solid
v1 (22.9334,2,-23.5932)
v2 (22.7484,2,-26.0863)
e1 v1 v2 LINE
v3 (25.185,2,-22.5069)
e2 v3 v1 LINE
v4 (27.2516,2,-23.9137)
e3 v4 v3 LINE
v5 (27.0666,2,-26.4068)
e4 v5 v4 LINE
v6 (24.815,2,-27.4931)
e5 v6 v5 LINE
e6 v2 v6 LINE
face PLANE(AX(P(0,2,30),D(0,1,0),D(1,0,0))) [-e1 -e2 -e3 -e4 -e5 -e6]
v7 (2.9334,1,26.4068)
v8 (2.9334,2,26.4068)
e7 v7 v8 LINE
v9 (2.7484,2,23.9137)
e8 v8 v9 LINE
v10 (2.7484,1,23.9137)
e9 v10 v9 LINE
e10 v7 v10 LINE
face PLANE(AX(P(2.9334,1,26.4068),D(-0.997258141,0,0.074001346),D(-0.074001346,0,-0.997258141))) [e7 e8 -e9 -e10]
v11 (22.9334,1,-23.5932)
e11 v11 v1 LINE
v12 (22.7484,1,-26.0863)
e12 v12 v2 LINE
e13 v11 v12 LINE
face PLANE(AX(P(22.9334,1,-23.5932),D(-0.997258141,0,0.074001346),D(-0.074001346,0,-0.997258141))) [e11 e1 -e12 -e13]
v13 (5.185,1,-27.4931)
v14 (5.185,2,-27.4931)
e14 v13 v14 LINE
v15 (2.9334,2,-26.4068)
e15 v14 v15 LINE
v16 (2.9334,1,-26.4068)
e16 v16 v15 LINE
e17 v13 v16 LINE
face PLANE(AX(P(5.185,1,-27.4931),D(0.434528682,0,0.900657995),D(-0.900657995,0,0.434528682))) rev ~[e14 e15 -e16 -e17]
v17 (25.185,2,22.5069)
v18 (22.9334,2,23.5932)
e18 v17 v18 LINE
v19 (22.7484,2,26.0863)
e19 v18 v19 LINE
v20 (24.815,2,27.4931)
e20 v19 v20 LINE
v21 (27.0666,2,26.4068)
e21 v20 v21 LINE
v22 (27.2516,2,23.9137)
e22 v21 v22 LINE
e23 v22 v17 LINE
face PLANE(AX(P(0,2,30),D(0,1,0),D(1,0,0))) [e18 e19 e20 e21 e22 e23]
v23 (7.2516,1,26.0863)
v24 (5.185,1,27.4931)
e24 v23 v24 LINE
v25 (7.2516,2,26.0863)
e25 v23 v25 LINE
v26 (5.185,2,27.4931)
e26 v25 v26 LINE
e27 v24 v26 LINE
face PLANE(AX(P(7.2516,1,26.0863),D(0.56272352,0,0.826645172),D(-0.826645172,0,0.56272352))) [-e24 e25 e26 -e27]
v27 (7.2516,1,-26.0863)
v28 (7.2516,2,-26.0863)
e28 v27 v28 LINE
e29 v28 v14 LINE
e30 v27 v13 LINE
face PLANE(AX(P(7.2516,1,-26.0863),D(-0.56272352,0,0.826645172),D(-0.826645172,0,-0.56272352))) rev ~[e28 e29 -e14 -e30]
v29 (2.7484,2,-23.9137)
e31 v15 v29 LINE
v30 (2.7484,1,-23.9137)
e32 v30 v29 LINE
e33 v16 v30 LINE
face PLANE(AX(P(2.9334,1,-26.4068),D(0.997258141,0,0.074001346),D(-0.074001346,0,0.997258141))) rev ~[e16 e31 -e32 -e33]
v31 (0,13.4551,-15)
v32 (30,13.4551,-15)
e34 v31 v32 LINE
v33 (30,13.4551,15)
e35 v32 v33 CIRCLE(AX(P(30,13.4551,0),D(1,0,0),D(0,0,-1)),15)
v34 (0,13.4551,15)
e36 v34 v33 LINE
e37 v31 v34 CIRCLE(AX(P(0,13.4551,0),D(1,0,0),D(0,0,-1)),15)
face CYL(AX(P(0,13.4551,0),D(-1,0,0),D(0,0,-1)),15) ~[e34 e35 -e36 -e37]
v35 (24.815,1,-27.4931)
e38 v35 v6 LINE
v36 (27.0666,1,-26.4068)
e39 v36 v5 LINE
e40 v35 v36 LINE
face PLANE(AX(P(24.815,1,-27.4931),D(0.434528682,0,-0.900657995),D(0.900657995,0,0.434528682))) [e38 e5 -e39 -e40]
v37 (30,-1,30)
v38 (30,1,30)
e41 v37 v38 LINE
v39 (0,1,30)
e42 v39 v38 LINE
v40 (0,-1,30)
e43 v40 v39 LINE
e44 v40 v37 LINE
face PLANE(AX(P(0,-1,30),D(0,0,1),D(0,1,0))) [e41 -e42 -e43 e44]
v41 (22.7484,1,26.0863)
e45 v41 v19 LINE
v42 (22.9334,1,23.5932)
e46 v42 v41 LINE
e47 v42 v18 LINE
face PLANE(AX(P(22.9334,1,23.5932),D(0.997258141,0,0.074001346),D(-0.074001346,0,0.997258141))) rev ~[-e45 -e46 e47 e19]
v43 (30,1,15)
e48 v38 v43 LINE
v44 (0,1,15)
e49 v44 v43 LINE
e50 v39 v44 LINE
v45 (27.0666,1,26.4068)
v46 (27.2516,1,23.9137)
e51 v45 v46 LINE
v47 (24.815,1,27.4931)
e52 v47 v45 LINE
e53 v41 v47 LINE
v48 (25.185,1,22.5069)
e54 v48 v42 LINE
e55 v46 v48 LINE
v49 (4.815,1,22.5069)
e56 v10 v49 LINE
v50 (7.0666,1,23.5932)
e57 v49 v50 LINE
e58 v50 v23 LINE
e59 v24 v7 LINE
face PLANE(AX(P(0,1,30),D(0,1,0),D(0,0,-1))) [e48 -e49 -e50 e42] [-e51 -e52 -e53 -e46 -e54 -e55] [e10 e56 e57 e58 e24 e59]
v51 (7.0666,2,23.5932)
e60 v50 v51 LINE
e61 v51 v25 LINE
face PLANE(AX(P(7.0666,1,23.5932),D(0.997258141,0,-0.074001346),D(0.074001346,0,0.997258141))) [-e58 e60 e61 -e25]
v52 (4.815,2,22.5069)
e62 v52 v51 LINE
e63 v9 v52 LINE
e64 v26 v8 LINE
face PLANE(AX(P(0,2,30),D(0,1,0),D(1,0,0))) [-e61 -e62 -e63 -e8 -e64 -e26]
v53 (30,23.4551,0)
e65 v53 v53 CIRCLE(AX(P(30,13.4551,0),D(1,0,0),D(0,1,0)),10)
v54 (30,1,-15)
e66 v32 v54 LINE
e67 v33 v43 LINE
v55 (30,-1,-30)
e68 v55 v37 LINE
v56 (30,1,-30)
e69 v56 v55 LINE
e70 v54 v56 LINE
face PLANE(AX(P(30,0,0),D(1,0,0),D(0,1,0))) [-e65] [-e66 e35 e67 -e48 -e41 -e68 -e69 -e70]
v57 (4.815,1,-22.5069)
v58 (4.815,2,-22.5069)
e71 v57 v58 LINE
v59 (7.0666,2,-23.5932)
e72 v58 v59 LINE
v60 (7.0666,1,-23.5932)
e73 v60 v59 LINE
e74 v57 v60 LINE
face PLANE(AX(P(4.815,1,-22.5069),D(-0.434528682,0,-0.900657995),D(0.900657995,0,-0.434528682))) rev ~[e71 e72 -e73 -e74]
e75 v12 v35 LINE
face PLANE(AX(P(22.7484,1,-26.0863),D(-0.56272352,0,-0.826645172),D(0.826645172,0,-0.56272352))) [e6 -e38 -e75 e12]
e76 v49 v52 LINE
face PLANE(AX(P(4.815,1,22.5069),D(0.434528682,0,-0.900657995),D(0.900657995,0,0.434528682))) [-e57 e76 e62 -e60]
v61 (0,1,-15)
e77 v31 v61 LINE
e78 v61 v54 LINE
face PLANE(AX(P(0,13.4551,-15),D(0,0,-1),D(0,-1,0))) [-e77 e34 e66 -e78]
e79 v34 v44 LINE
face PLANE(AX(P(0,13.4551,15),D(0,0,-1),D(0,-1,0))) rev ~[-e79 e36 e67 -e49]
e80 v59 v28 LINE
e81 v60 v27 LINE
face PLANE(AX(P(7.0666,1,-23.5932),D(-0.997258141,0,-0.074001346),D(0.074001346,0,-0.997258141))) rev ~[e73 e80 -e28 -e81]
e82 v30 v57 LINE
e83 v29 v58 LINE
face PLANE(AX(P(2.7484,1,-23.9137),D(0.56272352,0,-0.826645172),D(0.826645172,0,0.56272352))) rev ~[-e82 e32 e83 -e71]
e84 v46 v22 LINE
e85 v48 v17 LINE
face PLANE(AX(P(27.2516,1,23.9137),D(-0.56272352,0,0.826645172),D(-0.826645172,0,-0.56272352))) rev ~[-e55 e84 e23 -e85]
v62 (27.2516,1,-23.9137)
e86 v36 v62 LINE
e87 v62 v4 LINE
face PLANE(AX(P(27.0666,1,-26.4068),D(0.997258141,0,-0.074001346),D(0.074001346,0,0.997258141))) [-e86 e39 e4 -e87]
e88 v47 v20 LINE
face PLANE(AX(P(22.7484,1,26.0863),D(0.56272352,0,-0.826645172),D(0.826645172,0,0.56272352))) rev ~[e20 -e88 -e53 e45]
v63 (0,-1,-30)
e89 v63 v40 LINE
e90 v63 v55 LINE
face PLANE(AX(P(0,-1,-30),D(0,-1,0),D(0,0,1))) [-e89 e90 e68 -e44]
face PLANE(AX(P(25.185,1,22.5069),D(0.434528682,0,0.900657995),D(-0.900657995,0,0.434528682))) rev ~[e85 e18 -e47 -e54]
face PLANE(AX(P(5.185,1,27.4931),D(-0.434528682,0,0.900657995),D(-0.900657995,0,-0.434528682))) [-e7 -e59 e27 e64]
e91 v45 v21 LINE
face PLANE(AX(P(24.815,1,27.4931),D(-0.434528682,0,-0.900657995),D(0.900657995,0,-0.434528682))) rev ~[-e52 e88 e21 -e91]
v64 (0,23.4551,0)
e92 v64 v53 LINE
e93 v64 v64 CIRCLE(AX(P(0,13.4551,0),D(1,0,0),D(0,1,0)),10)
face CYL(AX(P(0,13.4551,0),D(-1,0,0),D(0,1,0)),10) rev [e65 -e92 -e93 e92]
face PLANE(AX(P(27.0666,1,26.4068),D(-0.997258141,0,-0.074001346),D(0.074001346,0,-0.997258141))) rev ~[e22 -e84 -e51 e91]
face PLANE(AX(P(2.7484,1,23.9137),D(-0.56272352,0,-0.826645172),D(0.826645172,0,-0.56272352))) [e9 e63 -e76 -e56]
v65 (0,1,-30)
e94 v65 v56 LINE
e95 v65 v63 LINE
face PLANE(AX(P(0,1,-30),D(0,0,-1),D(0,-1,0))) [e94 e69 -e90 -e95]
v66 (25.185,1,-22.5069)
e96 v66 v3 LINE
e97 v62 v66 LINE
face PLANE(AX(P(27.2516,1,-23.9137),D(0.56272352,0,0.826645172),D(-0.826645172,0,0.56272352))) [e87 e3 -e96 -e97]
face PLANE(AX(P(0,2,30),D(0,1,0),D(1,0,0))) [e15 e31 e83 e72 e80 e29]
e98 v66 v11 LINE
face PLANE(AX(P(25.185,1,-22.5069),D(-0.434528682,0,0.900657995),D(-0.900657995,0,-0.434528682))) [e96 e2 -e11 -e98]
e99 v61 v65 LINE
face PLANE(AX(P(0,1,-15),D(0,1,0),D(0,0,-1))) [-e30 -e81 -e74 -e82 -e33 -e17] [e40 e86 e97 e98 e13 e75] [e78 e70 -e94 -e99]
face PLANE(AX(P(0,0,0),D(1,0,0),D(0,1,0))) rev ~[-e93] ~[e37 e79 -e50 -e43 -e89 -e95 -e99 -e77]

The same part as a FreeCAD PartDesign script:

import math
import FreeCAD as App
import Part
import Sketcher

V = App.Vector


def add_polygon(sketch, points):
    """Adds a closed chain of lines whose ends are joined by coincident constraints."""
    first, n = sketch.GeometryCount, len(points)
    for a, b in zip(points, points[1:] + points[:1]):
        sketch.addGeometry(Part.LineSegment(App.Vector(*a, 0), App.Vector(*b, 0)), False)
    for i in range(n):
        sketch.addConstraint(Sketcher.Constraint("Coincident", first + i, 2, first + (i + 1) % n, 1))

doc = App.newDocument("Part")
body = doc.addObject("PartDesign::Body", "Body")

sketch1 = body.newObject("Sketcher::SketchObject", "Sketch")
sketch1.AttachmentSupport = (doc.getObject("YZ_Plane"), [""])
sketch1.MapMode = "FlatFace"
sketch1.addGeometry(Part.LineSegment(V(1, 30, 0), V(-1, 30, 0)), False)
sketch1.addGeometry(Part.LineSegment(V(-1, 30, 0), V(-1, -30, 0)), False)
sketch1.addGeometry(Part.LineSegment(V(-1, -30, 0), V(1, -30, 0)), False)
sketch1.addGeometry(Part.LineSegment(V(1, -30, 0), V(1, -15, 0)), False)
sketch1.addGeometry(Part.LineSegment(V(1, -15, 0), V(13.4551, -15, 0)), False)
sketch1.addGeometry(Part.ArcOfCircle(Part.Circle(V(13.4551, 0, 0), V(0, 0, 1), 15), math.radians(-90), math.radians(90)), False)
sketch1.addGeometry(Part.LineSegment(V(13.4551, 15, 0), V(1, 15, 0)), False)
sketch1.addGeometry(Part.LineSegment(V(1, 15, 0), V(1, 30, 0)), False)
sketch1.addGeometry(Part.Circle(V(13.4551, 0, 0), V(0, 0, 1), 10), False)
sketch1.addConstraint(Sketcher.Constraint("Coincident", 0, 2, 1, 1))
sketch1.addConstraint(Sketcher.Constraint("Coincident", 1, 2, 2, 1))
sketch1.addConstraint(Sketcher.Constraint("Coincident", 2, 2, 3, 1))
sketch1.addConstraint(Sketcher.Constraint("Coincident", 3, 2, 4, 1))
sketch1.addConstraint(Sketcher.Constraint("Tangent", 4, 2, 5, 1))
sketch1.addConstraint(Sketcher.Constraint("Tangent", 5, 2, 6, 1))
sketch1.addConstraint(Sketcher.Constraint("Coincident", 6, 2, 7, 1))
sketch1.addConstraint(Sketcher.Constraint("Coincident", 7, 2, 0, 1))
sketch1.addConstraint(Sketcher.Constraint("Horizontal", 0))
sketch1.addConstraint(Sketcher.Constraint("Vertical", 1))
sketch1.addConstraint(Sketcher.Constraint("Horizontal", 2))
sketch1.addConstraint(Sketcher.Constraint("Vertical", 3))
sketch1.addConstraint(Sketcher.Constraint("Horizontal", 4))
sketch1.addConstraint(Sketcher.Constraint("Horizontal", 6))
sketch1.addConstraint(Sketcher.Constraint("Vertical", 7))
sketch1.addConstraint(Sketcher.Constraint("Coincident", 8, 3, 5, 3))
sketch1.addConstraint(Sketcher.Constraint("Symmetric", 0, 2, 2, 2, -1, 1))
sketch1.addConstraint(Sketcher.Constraint("Symmetric", 3, 2, 6, 2, -1))
sketch1.addConstraint(Sketcher.Constraint("Diameter", 8, 20.0))
sketch1.addConstraint(Sketcher.Constraint("Radius", 5, 15.0))
sketch1.addConstraint(Sketcher.Constraint("DistanceX", 0, 2, 0, 1, 2.0))
sketch1.addConstraint(Sketcher.Constraint("DistanceY", 1, 2, 1, 1, 60.0))
sketch1.addConstraint(Sketcher.Constraint("DistanceX", 4, 1, 4, 2, 12.455))
pad1 = body.newObject("PartDesign::Pad", "Pad")
pad1.Profile = sketch1
pad1.Length = 30

sketch2 = body.newObject("Sketcher::SketchObject", "Sketch001")
sketch2.AttachmentSupport = (doc.getObject("XZ_Plane"), [""])
sketch2.MapMode = "FlatFace"
sketch2.AttachmentOffset = App.Placement(V(0, 0, -1), App.Rotation())
add_polygon(sketch2, [(7.2516, 26.0863), (7.0666, 23.5932), (4.815, 22.5069), (2.7484, 23.9137), (2.9334, 26.4068), (5.185, 27.4931)])
add_polygon(sketch2, [(25.185, 22.5069), (22.9334, 23.5932), (22.7484, 26.0863), (24.815, 27.4931), (27.0666, 26.4068), (27.2516, 23.9137)])
add_polygon(sketch2, [(4.815, -22.5069), (7.0666, -23.5932), (7.2516, -26.0863), (5.185, -27.4931), (2.9334, -26.4068), (2.7484, -23.9137)])
add_polygon(sketch2, [(24.815, -27.4931), (22.7484, -26.0863), (22.9334, -23.5932), (25.185, -22.5069), (27.2516, -23.9137), (27.0666, -26.4068)])
sketch2.addConstraint(Sketcher.Constraint("Symmetric", 0, 2, 12, 2, -1))
sketch2.addConstraint(Sketcher.Constraint("Symmetric", 5, 2, 13, 2, -1))
sketch2.addConstraint(Sketcher.Constraint("Symmetric", 4, 2, 14, 2, -1))
sketch2.addConstraint(Sketcher.Constraint("Symmetric", 3, 2, 15, 2, -1))
sketch2.addConstraint(Sketcher.Constraint("Symmetric", 2, 2, 16, 2, -1))
sketch2.addConstraint(Sketcher.Constraint("Symmetric", 1, 2, 17, 2, -1))
sketch2.addConstraint(Sketcher.Constraint("Symmetric", 7, 2, 18, 2, -1))
sketch2.addConstraint(Sketcher.Constraint("Symmetric", 6, 2, 19, 2, -1))
sketch2.addConstraint(Sketcher.Constraint("Symmetric", 11, 2, 20, 2, -1))
sketch2.addConstraint(Sketcher.Constraint("Symmetric", 10, 2, 21, 2, -1))
sketch2.addConstraint(Sketcher.Constraint("Symmetric", 9, 2, 22, 2, -1))
sketch2.addConstraint(Sketcher.Constraint("Symmetric", 8, 2, 23, 2, -1))
sketch2.addConstraint(Sketcher.Constraint("Parallel", 0, 3))
sketch2.addConstraint(Sketcher.Constraint("Parallel", 1, 4))
sketch2.addConstraint(Sketcher.Constraint("Parallel", 2, 5))
sketch2.addConstraint(Sketcher.Constraint("Parallel", 6, 9))
sketch2.addConstraint(Sketcher.Constraint("Parallel", 7, 10))
sketch2.addConstraint(Sketcher.Constraint("Parallel", 8, 11))
sketch2.addConstraint(Sketcher.Constraint("Parallel", 9, 12))
sketch2.addConstraint(Sketcher.Constraint("Parallel", 10, 13))
sketch2.addConstraint(Sketcher.Constraint("Parallel", 11, 14))
sketch2.addConstraint(Sketcher.Constraint("Horizontal", 0, 2, 6, 2))
sketch2.addConstraint(Sketcher.Constraint("Horizontal", 5, 2, 7, 2))
sketch2.addConstraint(Sketcher.Constraint("Horizontal", 4, 2, 8, 2))
sketch2.addConstraint(Sketcher.Constraint("Horizontal", 3, 2, 9, 2))
sketch2.addConstraint(Sketcher.Constraint("Horizontal", 2, 2, 10, 2))
sketch2.addConstraint(Sketcher.Constraint("Equal", 0, 1))
sketch2.addConstraint(Sketcher.Constraint("Equal", 1, 2))
sketch2.addConstraint(Sketcher.Constraint("Equal", 2, 3))
sketch2.addConstraint(Sketcher.Constraint("DistanceX", 0, 2, 9, 2, 20.0))
sketch2.addConstraint(Sketcher.Constraint("DistanceY", 13, 2, 2, 2, 50.0))
sketch2.addConstraint(Sketcher.Constraint("Distance", 0, 2.5))
sketch2.addConstraint(Sketcher.Constraint("DistanceY", 1, 2, 3, 2, 3.9))
sketch2.addConstraint(Sketcher.Constraint("DistanceX", 1, 2, 4, 2, 0.37))
sketch2.addConstraint(Sketcher.Constraint("DistanceX", -1, 1, 1, 2, 4.815))
sketch2.addConstraint(Sketcher.Constraint("DistanceY", -1, 1, 1, 2, 22.507))
pad2 = body.newObject("PartDesign::Pad", "Pad001")
pad2.Profile = sketch2
pad2.Length = 1
pad2.Reversed = True

doc.recompute()
